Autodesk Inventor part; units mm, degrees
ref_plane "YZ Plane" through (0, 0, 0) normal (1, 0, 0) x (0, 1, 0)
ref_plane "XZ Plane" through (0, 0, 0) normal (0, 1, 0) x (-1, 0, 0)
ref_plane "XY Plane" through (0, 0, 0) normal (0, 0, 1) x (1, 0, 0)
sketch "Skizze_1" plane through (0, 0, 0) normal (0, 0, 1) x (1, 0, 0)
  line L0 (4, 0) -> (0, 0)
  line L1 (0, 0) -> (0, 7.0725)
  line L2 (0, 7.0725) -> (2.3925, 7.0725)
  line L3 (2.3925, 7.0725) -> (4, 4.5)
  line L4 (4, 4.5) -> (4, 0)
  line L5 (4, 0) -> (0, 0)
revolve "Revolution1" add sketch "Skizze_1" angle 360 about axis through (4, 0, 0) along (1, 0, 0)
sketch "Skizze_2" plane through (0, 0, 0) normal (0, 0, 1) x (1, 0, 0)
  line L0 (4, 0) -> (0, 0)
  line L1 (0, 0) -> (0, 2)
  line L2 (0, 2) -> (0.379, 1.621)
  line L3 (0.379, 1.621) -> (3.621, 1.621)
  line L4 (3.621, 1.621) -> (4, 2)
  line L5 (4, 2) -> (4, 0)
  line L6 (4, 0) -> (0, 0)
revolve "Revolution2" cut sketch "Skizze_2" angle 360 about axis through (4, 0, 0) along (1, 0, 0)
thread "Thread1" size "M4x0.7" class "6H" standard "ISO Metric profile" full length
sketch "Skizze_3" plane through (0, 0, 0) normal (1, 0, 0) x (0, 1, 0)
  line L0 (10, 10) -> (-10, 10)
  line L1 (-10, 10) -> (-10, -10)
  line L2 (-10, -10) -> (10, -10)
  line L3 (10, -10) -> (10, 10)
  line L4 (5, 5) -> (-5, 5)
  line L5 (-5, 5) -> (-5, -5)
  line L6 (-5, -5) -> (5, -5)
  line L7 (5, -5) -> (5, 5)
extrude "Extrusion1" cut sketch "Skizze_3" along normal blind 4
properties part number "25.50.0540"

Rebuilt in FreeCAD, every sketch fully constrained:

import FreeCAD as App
import Part
import Sketcher

V = App.Vector
Q = App.Units.Quantity


def add_polygon(sketch, points):
    """Adds a closed chain of lines whose ends are joined by coincident constraints."""
    first, n = sketch.GeometryCount, len(points)
    for a, b in zip(points, points[1:] + points[:1]):
        sketch.addGeometry(Part.LineSegment(App.Vector(*a, 0), App.Vector(*b, 0)), False)
    for i in range(n):
        sketch.addConstraint(Sketcher.Constraint("Coincident", first + i, 2, first + (i + 1) % n, 1))

doc = App.newDocument("Part")
body = doc.addObject("PartDesign::Body", "Body")

sketch1 = body.newObject("Sketcher::SketchObject", "Sketch")
sketch1.AttachmentSupport = (doc.getObject("XY_Plane"), [""])
sketch1.MapMode = "FlatFace"
add_polygon(sketch1, [(0, 0), (4, 0), (4, 4.5), (2.4, 7.1), (0, 7.1)])
sketch1.addConstraint([
    Sketcher.Constraint("Horizontal", 0),
    Sketcher.Constraint("Vertical", 1),
    Sketcher.Constraint("Horizontal", 3),
    Sketcher.Constraint("Vertical", 4),
    Sketcher.Constraint("Coincident", 4, 2, -1, 1),
    Sketcher.Constraint("DistanceX", 0, 1, 0, 2, 4.0),
    Sketcher.Constraint("Angle", 2, Q("122.0004 deg")),
    Sketcher.Constraint("DistanceY", 1, 1, 1, 2, 4.5),
    Sketcher.Constraint("DistanceX", 3, 2, 3, 1, 2.3925),
])
revolution = body.newObject("PartDesign::Revolution", "Revolution")
revolution.Profile = sketch1
revolution.ReferenceAxis = (sketch1, ["H_Axis"])
revolution.Angle = 360

sketch2 = body.newObject("Sketcher::SketchObject", "Sketch001")
sketch2.AttachmentSupport = (doc.getObject("XY_Plane"), [""])
sketch2.MapMode = "FlatFace"
add_polygon(sketch2, [(0, 0), (4, 0), (4, 2), (3.6, 1.6), (0.4, 1.6), (0, 2)])
sketch2.addConstraint([
    Sketcher.Constraint("Horizontal", 0),
    Sketcher.Constraint("Vertical", 1),
    Sketcher.Constraint("Horizontal", 3),
    Sketcher.Constraint("Vertical", 5),
    Sketcher.Constraint("Coincident", 5, 2, -1, 1),
    Sketcher.Constraint("Perpendicular", 2, 4),
    Sketcher.Constraint("Horizontal", 1, 2, 4, 2),
    Sketcher.Constraint("Equal", 2, 4),
    Sketcher.Constraint("DistanceX", 0, 1, 0, 2, 4.0),
    Sketcher.Constraint("DistanceY", 1, 1, 1, 2, 2.0),
    Sketcher.Constraint("DistanceX", 3, 2, 3, 1, 3.242),
])
groove = body.newObject("PartDesign::Groove", "Groove")
groove.Profile = sketch2
groove.ReferenceAxis = (sketch2, ["H_Axis"])
groove.Angle = 360

sketch3 = body.newObject("Sketcher::SketchObject", "Sketch002")
sketch3.AttachmentSupport = (doc.getObject("YZ_Plane"), [""])
sketch3.MapMode = "FlatFace"
add_polygon(sketch3, [(10, -10), (10, 10), (-10, 10), (-10, -10)])
add_polygon(sketch3, [(-5, 5), (5, 5), (5, -5), (-5, -5)])
sketch3.addConstraint([
    Sketcher.Constraint("Vertical", 0),
    Sketcher.Constraint("Horizontal", 1),
    Sketcher.Constraint("Vertical", 2),
    Sketcher.Constraint("Horizontal", 3),
    Sketcher.Constraint("Horizontal", 4),
    Sketcher.Constraint("Vertical", 5),
    Sketcher.Constraint("Horizontal", 6),
    Sketcher.Constraint("Vertical", 7),
    Sketcher.Constraint("Symmetric", 0, 2, 2, 2, -1, 1),
    Sketcher.Constraint("Symmetric", 4, 2, 6, 2, -1, 1),
    Sketcher.Constraint("Equal", 3, 0),
    Sketcher.Constraint("Equal", 6, 5),
    Sketcher.Constraint("DistanceX", 1, 2, 1, 1, 20.0),
    Sketcher.Constraint("DistanceX", 4, 1, 4, 2, 10.0),
])
pocket1 = body.newObject("PartDesign::Pocket", "Pocket")
pocket1.Profile = sketch3
pocket1.Length = 4
pocket1.Reversed = True

doc.recompute()
